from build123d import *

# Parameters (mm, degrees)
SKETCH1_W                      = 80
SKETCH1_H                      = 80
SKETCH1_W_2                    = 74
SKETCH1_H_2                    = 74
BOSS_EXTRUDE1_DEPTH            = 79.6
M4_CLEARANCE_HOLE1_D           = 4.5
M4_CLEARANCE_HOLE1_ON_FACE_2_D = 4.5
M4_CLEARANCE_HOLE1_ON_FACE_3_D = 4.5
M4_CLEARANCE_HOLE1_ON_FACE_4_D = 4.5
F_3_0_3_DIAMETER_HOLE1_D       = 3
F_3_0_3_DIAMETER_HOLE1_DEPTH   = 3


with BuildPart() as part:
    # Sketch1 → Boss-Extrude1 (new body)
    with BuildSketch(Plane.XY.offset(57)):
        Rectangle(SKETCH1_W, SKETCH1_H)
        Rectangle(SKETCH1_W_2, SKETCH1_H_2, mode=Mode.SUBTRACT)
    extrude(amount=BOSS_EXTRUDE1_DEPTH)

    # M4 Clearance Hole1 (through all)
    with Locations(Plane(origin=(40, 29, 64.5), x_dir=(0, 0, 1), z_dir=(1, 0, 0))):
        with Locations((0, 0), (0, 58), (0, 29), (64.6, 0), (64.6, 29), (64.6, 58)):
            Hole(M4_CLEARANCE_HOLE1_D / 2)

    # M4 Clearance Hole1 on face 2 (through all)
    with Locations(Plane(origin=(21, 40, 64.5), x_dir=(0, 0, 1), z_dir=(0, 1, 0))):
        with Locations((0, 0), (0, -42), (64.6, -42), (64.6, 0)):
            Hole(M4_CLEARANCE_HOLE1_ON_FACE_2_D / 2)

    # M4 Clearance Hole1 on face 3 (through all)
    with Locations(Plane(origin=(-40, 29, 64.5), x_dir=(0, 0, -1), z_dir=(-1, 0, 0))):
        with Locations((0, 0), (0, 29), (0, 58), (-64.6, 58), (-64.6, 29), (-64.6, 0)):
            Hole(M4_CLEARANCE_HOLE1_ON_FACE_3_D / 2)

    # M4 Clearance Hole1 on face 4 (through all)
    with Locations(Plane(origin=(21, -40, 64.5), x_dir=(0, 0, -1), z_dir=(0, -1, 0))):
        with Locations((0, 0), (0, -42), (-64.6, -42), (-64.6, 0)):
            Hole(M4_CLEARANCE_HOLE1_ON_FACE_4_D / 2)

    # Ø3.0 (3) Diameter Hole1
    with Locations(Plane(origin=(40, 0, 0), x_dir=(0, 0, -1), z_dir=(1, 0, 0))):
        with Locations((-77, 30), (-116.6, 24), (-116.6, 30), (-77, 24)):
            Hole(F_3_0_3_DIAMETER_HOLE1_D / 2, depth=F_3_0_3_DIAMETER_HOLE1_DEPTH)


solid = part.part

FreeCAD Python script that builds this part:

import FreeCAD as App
import Part
import Sketcher
Q = App.Units.Quantity

doc = App.newDocument("Part")
params = doc.addObject("Spreadsheet::Sheet", "Params")
for row, (alias, value) in enumerate([
    ("sketch1_width", "80 mm"),
    ("sketch1_width2", "74 mm"),
    ("pad1_length", "79.6 mm"),
    ("sketch2_diameter", "4.5 mm"),
    ("hole_diameter", "4.5 mm"),
    ("sketch3_diameter", "4.5 mm"),
    ("hole2_diameter", "4.5 mm"),
    ("sketch4_diameter", "4.5 mm"),
    ("hole3_diameter", "4.5 mm"),
    ("sketch5_diameter", "4.5 mm"),
    ("hole4_diameter", "4.5 mm"),
    ("sketch6_diameter", "3 mm"),
    ("hole5_diameter", "3 mm"),
    ("hole5_depth", "3 mm"),
], start=1):
    params.set(f"A{row}", alias)
    params.set(f"B{row}", "=" + value)
    params.setAlias(f"B{row}", alias)

body = doc.addObject("PartDesign::Body", "Body")

# Sketch on XY plane
sketch1 = doc.addObject("Sketcher::SketchObject", "Sketch")
body.addObject(sketch1)
sketch1.AttachmentSupport = (doc.XY_Plane, [""])
sketch1.MapMode = "FlatFace"
sketch1.AttachmentOffset = App.Placement(App.Vector(0, 0, 57), App.Rotation())
sketch1.addGeometry([
    Part.LineSegment(App.Vector(-40, 40, 0), App.Vector(-40, -40, 0)),  # 0
    Part.LineSegment(App.Vector(-40, -40, 0), App.Vector(40, -40, 0)),  # 1
    Part.LineSegment(App.Vector(40, -40, 0), App.Vector(40, 40, 0)),  # 2
    Part.LineSegment(App.Vector(40, 40, 0), App.Vector(-40, 40, 0)),  # 3
    Part.LineSegment(App.Vector(37, -37, 0), App.Vector(-37, -37, 0)),  # 4
    Part.LineSegment(App.Vector(-37, -37, 0), App.Vector(-37, 37, 0)),  # 5
    Part.LineSegment(App.Vector(-37, 37, 0), App.Vector(37, 37, 0)),  # 6
    Part.LineSegment(App.Vector(37, 37, 0), App.Vector(37, -37, 0)),  # 7
], False)
sketch1.addConstraint([
    Sketcher.Constraint("Coincident", 0, 2, 1, 1),
    Sketcher.Constraint("Coincident", 1, 2, 2, 1),
    Sketcher.Constraint("Coincident", 2, 2, 3, 1),
    Sketcher.Constraint("Coincident", 3, 2, 0, 1),
    Sketcher.Constraint("Coincident", 4, 2, 5, 1),
    Sketcher.Constraint("Coincident", 5, 2, 6, 1),
    Sketcher.Constraint("Coincident", 6, 2, 7, 1),
    Sketcher.Constraint("Coincident", 7, 2, 4, 1),
    Sketcher.Constraint("Vertical", 0),
    Sketcher.Constraint("Horizontal", 1),
    Sketcher.Constraint("Vertical", 2),
    Sketcher.Constraint("Horizontal", 3),
    Sketcher.Constraint("Horizontal", 4),
    Sketcher.Constraint("Vertical", 5),
    Sketcher.Constraint("Horizontal", 6),
    Sketcher.Constraint("Vertical", 7),
    Sketcher.Constraint("Symmetric", 0, 2, 2, 2, -1, 1),
    Sketcher.Constraint("Symmetric", 4, 2, 6, 2, -1, 1),
    Sketcher.Constraint("Equal", 3, 0),
    Sketcher.Constraint("Equal", 6, 5),
    Sketcher.Constraint("DistanceX", 1, 1, 1, 2, Q("80 mm")),
    Sketcher.Constraint("DistanceX", 4, 2, 4, 1, Q("74 mm")),
])
sketch1.setExpression("Constraints[20]", "Params.sketch1_width")
sketch1.setExpression("Constraints[21]", "Params.sketch1_width2")
pad1 = doc.addObject("PartDesign::Pad", "Pad")
body.addObject(pad1)
pad1.Profile = sketch1
pad1.setExpression("Length", "Params.pad1_length")

# Sketch on YZ plane
sketch2 = doc.addObject("Sketcher::SketchObject", "Sketch001")
body.addObject(sketch2)
sketch2.AttachmentSupport = (doc.YZ_Plane, [""])
sketch2.MapMode = "FlatFace"
sketch2.AttachmentOffset = App.Placement(App.Vector(0, 0, 40), App.Rotation())
sketch2.addGeometry([
    Part.Circle(App.Vector(29, 64.5, 0), App.Vector(0, 0, 1), 2.25),  # 0
    Part.Circle(App.Vector(-29, 64.5, 0), App.Vector(0, 0, 1), 2.25),  # 1
    Part.Circle(App.Vector(0, 64.5, 0), App.Vector(0, 0, 1), 2.25),  # 2
    Part.Circle(App.Vector(29, 129.1, 0), App.Vector(0, 0, 1), 2.25),  # 3
    Part.Circle(App.Vector(0, 129.1, 0), App.Vector(0, 0, 1), 2.25),  # 4
    Part.Circle(App.Vector(-29, 129.1, 0), App.Vector(0, 0, 1), 2.25),  # 5
], False)
sketch2.addConstraint([
    Sketcher.Constraint("Equal", 0, 1),
    Sketcher.Constraint("Equal", 1, 2),
    Sketcher.Constraint("Equal", 2, 3),
    Sketcher.Constraint("Equal", 3, 4),
    Sketcher.Constraint("Equal", 4, 5),
    Sketcher.Constraint("Symmetric", 0, 3, 1, 3, -2),
    Sketcher.Constraint("Symmetric", 3, 3, 5, 3, -2),
    Sketcher.Constraint("PointOnObject", 2, 3, -2),
    Sketcher.Constraint("PointOnObject", 4, 3, -2),
    Sketcher.Constraint("Horizontal", 1, 3, 2, 3),
    Sketcher.Constraint("Horizontal", 3, 3, 4, 3),
    Sketcher.Constraint("Vertical", 0, 3, 3, 3),
    Sketcher.Constraint("Diameter", 0, Q("4.5 mm")),
    Sketcher.Constraint("DistanceX", -1, 1, 0, 3, Q("29 mm")),
    Sketcher.Constraint("DistanceY", -1, 1, 0, 3, Q("64.5 mm")),
    Sketcher.Constraint("DistanceY", -1, 1, 3, 3, Q("129.1 mm")),
])
sketch2.setExpression("Constraints[12]", "Params.sketch2_diameter")
doc.recompute()
hole = doc.addObject("PartDesign::Hole", "Hole")
body.addObject(hole)
hole.Profile = sketch2
hole.ThreadType = "None"
hole.setExpression("Diameter", "Params.hole_diameter")
hole.DepthType = "ThroughAll"

# Sketch on XZ plane
sketch3 = doc.addObject("Sketcher::SketchObject", "Sketch002")
body.addObject(sketch3)
sketch3.AttachmentSupport = (doc.XZ_Plane, [""])
sketch3.MapMode = "FlatFace"
sketch3.AttachmentOffset = App.Placement(App.Vector(0, 0, -40), App.Rotation())
sketch3.addGeometry([
    Part.Circle(App.Vector(21, 64.5, 0), App.Vector(0, 0, 1), 2.25),
    Part.Circle(App.Vector(-21, 64.5, 0), App.Vector(0, 0, 1), 2.25),
    Part.Circle(App.Vector(-21, 129.1, 0), App.Vector(0, 0, 1), 2.25),
    Part.Circle(App.Vector(21, 129.1, 0), App.Vector(0, 0, 1), 2.25),
], False)
sketch3.addConstraint([
    Sketcher.Constraint("Equal", 0, 1),
    Sketcher.Constraint("Equal", 1, 2),
    Sketcher.Constraint("Equal", 2, 3),
    Sketcher.Constraint("Symmetric", 0, 3, 1, 3, -2),
    Sketcher.Constraint("Symmetric", 2, 3, 3, 3, -2),
    Sketcher.Constraint("Vertical", 1, 3, 2, 3),
    Sketcher.Constraint("Diameter", 0, Q("4.5 mm")),
    Sketcher.Constraint("DistanceX", -1, 1, 0, 3, Q("21 mm")),
    Sketcher.Constraint("DistanceY", -1, 1, 0, 3, Q("64.5 mm")),
    Sketcher.Constraint("DistanceY", -1, 1, 2, 3, Q("129.1 mm")),
])
sketch3.setExpression("Constraints[6]", "Params.sketch3_diameter")
doc.recompute()
hole2 = doc.addObject("PartDesign::Hole", "Hole001")
body.addObject(hole2)
hole2.Profile = sketch3
hole2.ThreadType = "None"
hole2.setExpression("Diameter", "Params.hole2_diameter")
hole2.DepthType = "ThroughAll"
hole2.Reversed = True

# Sketch on YZ plane
sketch4 = doc.addObject("Sketcher::SketchObject", "Sketch003")
body.addObject(sketch4)
sketch4.AttachmentSupport = (doc.YZ_Plane, [""])
sketch4.MapMode = "FlatFace"
sketch4.AttachmentOffset = App.Placement(App.Vector(0, 0, -40), App.Rotation())
sketch4.addGeometry([
    Part.Circle(App.Vector(29, 64.5, 0), App.Vector(0, 0, 1), 2.25),  # 0
    Part.Circle(App.Vector(0, 64.5, 0), App.Vector(0, 0, 1), 2.25),  # 1
    Part.Circle(App.Vector(-29, 64.5, 0), App.Vector(0, 0, 1), 2.25),  # 2
    Part.Circle(App.Vector(-29, 129.1, 0), App.Vector(0, 0, 1), 2.25),  # 3
    Part.Circle(App.Vector(0, 129.1, 0), App.Vector(0, 0, 1), 2.25),  # 4
    Part.Circle(App.Vector(29, 129.1, 0), App.Vector(0, 0, 1), 2.25),  # 5
], False)
sketch4.addConstraint([
    Sketcher.Constraint("Equal", 0, 1),
    Sketcher.Constraint("Equal", 1, 2),
    Sketcher.Constraint("Equal", 2, 3),
    Sketcher.Constraint("Equal", 3, 4),
    Sketcher.Constraint("Equal", 4, 5),
    Sketcher.Constraint("Symmetric", 0, 3, 2, 3, -2),
    Sketcher.Constraint("Symmetric", 3, 3, 5, 3, -2),
    Sketcher.Constraint("PointOnObject", 1, 3, -2),
    Sketcher.Constraint("PointOnObject", 4, 3, -2),
    Sketcher.Constraint("Horizontal", 0, 3, 1, 3),
    Sketcher.Constraint("Horizontal", 3, 3, 4, 3),
    Sketcher.Constraint("Vertical", 2, 3, 3, 3),
    Sketcher.Constraint("Diameter", 0, Q("4.5 mm")),
    Sketcher.Constraint("DistanceX", -1, 1, 0, 3, Q("29 mm")),
    Sketcher.Constraint("DistanceY", -1, 1, 0, 3, Q("64.5 mm")),
    Sketcher.Constraint("DistanceY", -1, 1, 3, 3, Q("129.1 mm")),
])
sketch4.setExpression("Constraints[12]", "Params.sketch4_diameter")
doc.recompute()
hole3 = doc.addObject("PartDesign::Hole", "Hole002")
body.addObject(hole3)
hole3.Profile = sketch4
hole3.ThreadType = "None"
hole3.setExpression("Diameter", "Params.hole3_diameter")
hole3.DepthType = "ThroughAll"
hole3.Reversed = True

# Sketch on XZ plane
sketch5 = doc.addObject("Sketcher::SketchObject", "Sketch004")
body.addObject(sketch5)
sketch5.AttachmentSupport = (doc.XZ_Plane, [""])
sketch5.MapMode = "FlatFace"
sketch5.AttachmentOffset = App.Placement(App.Vector(0, 0, 40), App.Rotation())
sketch5.addGeometry([
    Part.Circle(App.Vector(21, 64.5, 0), App.Vector(0, 0, 1), 2.25),
    Part.Circle(App.Vector(-21, 64.5, 0), App.Vector(0, 0, 1), 2.25),
    Part.Circle(App.Vector(-21, 129.1, 0), App.Vector(0, 0, 1), 2.25),
    Part.Circle(App.Vector(21, 129.1, 0), App.Vector(0, 0, 1), 2.25),
], False)
sketch5.addConstraint([
    Sketcher.Constraint("Equal", 0, 1),
    Sketcher.Constraint("Equal", 1, 2),
    Sketcher.Constraint("Equal", 2, 3),
    Sketcher.Constraint("Symmetric", 0, 3, 1, 3, -2),
    Sketcher.Constraint("Symmetric", 2, 3, 3, 3, -2),
    Sketcher.Constraint("Vertical", 1, 3, 2, 3),
    Sketcher.Constraint("Diameter", 0, Q("4.5 mm")),
    Sketcher.Constraint("DistanceX", -1, 1, 0, 3, Q("21 mm")),
    Sketcher.Constraint("DistanceY", -1, 1, 0, 3, Q("64.5 mm")),
    Sketcher.Constraint("DistanceY", -1, 1, 2, 3, Q("129.1 mm")),
])
sketch5.setExpression("Constraints[6]", "Params.sketch5_diameter")
doc.recompute()
hole4 = doc.addObject("PartDesign::Hole", "Hole003")
body.addObject(hole4)
hole4.Profile = sketch5
hole4.ThreadType = "None"
hole4.setExpression("Diameter", "Params.hole4_diameter")
hole4.DepthType = "ThroughAll"

# Sketch on YZ plane
sketch6 = doc.addObject("Sketcher::SketchObject", "Sketch005")
body.addObject(sketch6)
sketch6.AttachmentSupport = (doc.YZ_Plane, [""])
sketch6.MapMode = "FlatFace"
sketch6.AttachmentOffset = App.Placement(App.Vector(0, 0, 40), App.Rotation())
sketch6.addGeometry([
    Part.Circle(App.Vector(30, 77, 0), App.Vector(0, 0, 1), 1.5),
    Part.Circle(App.Vector(24, 116.6, 0), App.Vector(0, 0, 1), 1.5),
    Part.Circle(App.Vector(30, 116.6, 0), App.Vector(0, 0, 1), 1.5),
    Part.Circle(App.Vector(24, 77, 0), App.Vector(0, 0, 1), 1.5),
], False)
sketch6.addConstraint([
    Sketcher.Constraint("Equal", 0, 1),
    Sketcher.Constraint("Equal", 1, 2),
    Sketcher.Constraint("Equal", 2, 3),
    Sketcher.Constraint("Horizontal", 1, 3, 2, 3),
    Sketcher.Constraint("Horizontal", 0, 3, 3, 3),
    Sketcher.Constraint("Vertical", 0, 3, 2, 3),
    Sketcher.Constraint("Vertical", 1, 3, 3, 3),
    Sketcher.Constraint("Diameter", 0, Q("3 mm")),
    Sketcher.Constraint("DistanceX", -1, 1, 0, 3, Q("30 mm")),
    Sketcher.Constraint("DistanceY", -1, 1, 0, 3, Q("77 mm")),
    Sketcher.Constraint("DistanceX", -1, 1, 1, 3, Q("24 mm")),
    Sketcher.Constraint("DistanceY", -1, 1, 1, 3, Q("116.6 mm")),
])
sketch6.setExpression("Constraints[7]", "Params.sketch6_diameter")
doc.recompute()
hole5 = doc.addObject("PartDesign::Hole", "Hole004")
body.addObject(hole5)
hole5.Profile = sketch6
hole5.ThreadType = "None"
hole5.setExpression("Diameter", "Params.hole5_diameter")
hole5.DepthType = "Dimension"
hole5.setExpression("Depth", "Params.hole5_depth")
hole5.DrillPoint = "Flat"

doc.recompute()
